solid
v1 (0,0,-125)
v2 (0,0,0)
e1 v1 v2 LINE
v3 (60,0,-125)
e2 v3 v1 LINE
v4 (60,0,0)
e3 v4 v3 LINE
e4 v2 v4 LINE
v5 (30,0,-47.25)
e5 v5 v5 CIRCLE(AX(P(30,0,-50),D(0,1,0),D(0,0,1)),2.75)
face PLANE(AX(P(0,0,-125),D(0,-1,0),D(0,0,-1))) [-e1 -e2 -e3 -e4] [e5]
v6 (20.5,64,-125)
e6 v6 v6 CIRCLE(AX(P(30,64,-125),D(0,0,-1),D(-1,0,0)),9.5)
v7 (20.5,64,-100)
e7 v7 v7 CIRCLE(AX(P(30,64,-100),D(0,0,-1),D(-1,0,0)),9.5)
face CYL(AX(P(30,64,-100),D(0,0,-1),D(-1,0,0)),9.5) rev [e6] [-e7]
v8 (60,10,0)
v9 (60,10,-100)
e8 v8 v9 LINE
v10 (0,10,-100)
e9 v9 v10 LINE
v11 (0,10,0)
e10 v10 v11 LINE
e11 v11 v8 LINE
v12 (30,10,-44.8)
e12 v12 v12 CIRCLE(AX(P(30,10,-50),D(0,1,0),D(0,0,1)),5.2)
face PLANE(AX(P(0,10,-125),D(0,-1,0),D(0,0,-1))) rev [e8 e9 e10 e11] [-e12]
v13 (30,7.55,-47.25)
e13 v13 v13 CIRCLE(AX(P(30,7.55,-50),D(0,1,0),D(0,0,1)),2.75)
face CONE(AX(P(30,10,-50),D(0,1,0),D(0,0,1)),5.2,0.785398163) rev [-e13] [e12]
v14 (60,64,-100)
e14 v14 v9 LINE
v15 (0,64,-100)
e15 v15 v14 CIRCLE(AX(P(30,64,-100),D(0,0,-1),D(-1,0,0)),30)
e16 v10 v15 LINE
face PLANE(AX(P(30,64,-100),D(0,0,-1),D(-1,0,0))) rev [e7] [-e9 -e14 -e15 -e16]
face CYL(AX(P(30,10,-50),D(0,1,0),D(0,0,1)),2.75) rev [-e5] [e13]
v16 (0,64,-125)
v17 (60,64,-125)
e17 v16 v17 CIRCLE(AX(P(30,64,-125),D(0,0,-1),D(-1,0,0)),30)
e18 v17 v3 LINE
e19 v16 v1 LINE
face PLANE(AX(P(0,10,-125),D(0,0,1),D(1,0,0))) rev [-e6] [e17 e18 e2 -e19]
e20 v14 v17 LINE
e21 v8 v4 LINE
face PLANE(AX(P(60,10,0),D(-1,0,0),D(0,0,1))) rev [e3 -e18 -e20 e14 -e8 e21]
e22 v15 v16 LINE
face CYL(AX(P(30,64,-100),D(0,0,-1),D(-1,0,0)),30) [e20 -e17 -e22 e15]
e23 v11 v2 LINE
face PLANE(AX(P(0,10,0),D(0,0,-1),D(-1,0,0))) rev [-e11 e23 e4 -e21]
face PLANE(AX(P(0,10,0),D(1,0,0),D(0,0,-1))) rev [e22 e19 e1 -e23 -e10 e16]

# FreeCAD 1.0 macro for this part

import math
import FreeCAD as App
import Part
import Sketcher
from FreeCAD import Vector


def add_polygon(sketch, points):
    """Adds a closed chain of lines whose ends are joined by coincident constraints."""
    first, n = sketch.GeometryCount, len(points)
    for a, b in zip(points, points[1:] + points[:1]):
        sketch.addGeometry(Part.LineSegment(App.Vector(*a, 0), App.Vector(*b, 0)), False)
    for i in range(n):
        sketch.addConstraint(Sketcher.Constraint("Coincident", first + i, 2, first + (i + 1) % n, 1))

doc = App.newDocument("Part")
body = doc.addObject("PartDesign::Body", "Body")

sketch1 = body.newObject("Sketcher::SketchObject", "Sketch")
sketch1.AttachmentSupport = (doc.getObject("XZ_Plane"), [""])
sketch1.MapMode = "FlatFace"
add_polygon(sketch1, [(0, -125), (0, 0), (60, 0), (60, -125)])
sketch1.addConstraint([
    Sketcher.Constraint("Vertical", 0),
    Sketcher.Constraint("Horizontal", 1),
    Sketcher.Constraint("Vertical", 2),
    Sketcher.Constraint("Horizontal", 3),
    Sketcher.Constraint("Coincident", 0, 2, -1, 1),
    Sketcher.Constraint("DistanceX", 1, 1, 1, 2, 60.0),
    Sketcher.Constraint("DistanceY", 0, 1, 0, 2, 125.0),
])
pad1 = body.newObject("PartDesign::Pad", "Pad")
pad1.Profile = sketch1
pad1.Length = 10
pad1.Reversed = True

sketch2 = body.newObject("Sketcher::SketchObject", "Sketch001")
sketch2.AttachmentSupport = (doc.getObject("XY_Plane"), [""])
sketch2.MapMode = "FlatFace"
sketch2.AttachmentOffset = App.Placement(Vector(0, 0, -125), App.Rotation())
sketch2.addGeometry([
    Part.LineSegment(Vector(60, 10, 0), Vector(0, 10, 0)),
    Part.LineSegment(Vector(0, 10, 0), Vector(0, 64, 0)),
    Part.ArcOfCircle(Part.Circle(Vector(30, 64, 0), Vector(0, 0, 1), 30), math.radians(0), math.radians(180)),
    Part.LineSegment(Vector(60, 64, 0), Vector(60, 10, 0)),
    Part.Circle(Vector(30, 64, 0), Vector(0, 0, 1), 10),
], False)
sketch2.addConstraint([
    Sketcher.Constraint("Coincident", 0, 2, 1, 1),
    Sketcher.Constraint("Tangent", 1, 2, 2, 2),
    Sketcher.Constraint("Tangent", 2, 1, 3, 1),
    Sketcher.Constraint("Coincident", 3, 2, 0, 1),
    Sketcher.Constraint("Horizontal", 0),
    Sketcher.Constraint("Vertical", 1),
    Sketcher.Constraint("Vertical", 3),
    Sketcher.Constraint("Coincident", 4, 3, 2, 3),
    Sketcher.Constraint("PointOnObject", 0, 2, -2),
    Sketcher.Constraint("Diameter", 4, 19.0),
    Sketcher.Constraint("Radius", 2, 30.0),
    Sketcher.Constraint("DistanceY", 1, 1, 1, 2, 54.0),
    Sketcher.Constraint("DistanceY", -1, 1, 2, 3, 64.0),
])
pad2 = body.newObject("PartDesign::Pad", "Pad001")
pad2.Profile = sketch2
pad2.Length = 25

sketch3 = body.newObject("Sketcher::SketchObject", "Sketch002")
sketch3.AttachmentSupport = (doc.getObject("XZ_Plane"), [""])
sketch3.MapMode = "FlatFace"
sketch3.AttachmentOffset = App.Placement(Vector(0, 0, -10), App.Rotation())
sketch3.addGeometry(Part.Circle(Vector(30, -50, 0), Vector(0, 0, 1), 2.8), False)
sketch3.addConstraint([
    Sketcher.Constraint("Diameter", 0, 5.5),
    Sketcher.Constraint("DistanceX", -1, 1, 0, 3, 30.0),
    Sketcher.Constraint("DistanceY", 0, 3, -1, 1, 50.0),
])
doc.recompute()
hole = body.newObject("PartDesign::Hole", "Hole")
hole.Profile = sketch3
hole.ThreadType = "None"
hole.Diameter = 5.5
hole.DepthType = "ThroughAll"
hole.HoleCutType = "Countersink"
hole.HoleCutDiameter = 10.4
hole.HoleCutCountersinkAngle = 90
hole.Reversed = True

doc.recompute()
